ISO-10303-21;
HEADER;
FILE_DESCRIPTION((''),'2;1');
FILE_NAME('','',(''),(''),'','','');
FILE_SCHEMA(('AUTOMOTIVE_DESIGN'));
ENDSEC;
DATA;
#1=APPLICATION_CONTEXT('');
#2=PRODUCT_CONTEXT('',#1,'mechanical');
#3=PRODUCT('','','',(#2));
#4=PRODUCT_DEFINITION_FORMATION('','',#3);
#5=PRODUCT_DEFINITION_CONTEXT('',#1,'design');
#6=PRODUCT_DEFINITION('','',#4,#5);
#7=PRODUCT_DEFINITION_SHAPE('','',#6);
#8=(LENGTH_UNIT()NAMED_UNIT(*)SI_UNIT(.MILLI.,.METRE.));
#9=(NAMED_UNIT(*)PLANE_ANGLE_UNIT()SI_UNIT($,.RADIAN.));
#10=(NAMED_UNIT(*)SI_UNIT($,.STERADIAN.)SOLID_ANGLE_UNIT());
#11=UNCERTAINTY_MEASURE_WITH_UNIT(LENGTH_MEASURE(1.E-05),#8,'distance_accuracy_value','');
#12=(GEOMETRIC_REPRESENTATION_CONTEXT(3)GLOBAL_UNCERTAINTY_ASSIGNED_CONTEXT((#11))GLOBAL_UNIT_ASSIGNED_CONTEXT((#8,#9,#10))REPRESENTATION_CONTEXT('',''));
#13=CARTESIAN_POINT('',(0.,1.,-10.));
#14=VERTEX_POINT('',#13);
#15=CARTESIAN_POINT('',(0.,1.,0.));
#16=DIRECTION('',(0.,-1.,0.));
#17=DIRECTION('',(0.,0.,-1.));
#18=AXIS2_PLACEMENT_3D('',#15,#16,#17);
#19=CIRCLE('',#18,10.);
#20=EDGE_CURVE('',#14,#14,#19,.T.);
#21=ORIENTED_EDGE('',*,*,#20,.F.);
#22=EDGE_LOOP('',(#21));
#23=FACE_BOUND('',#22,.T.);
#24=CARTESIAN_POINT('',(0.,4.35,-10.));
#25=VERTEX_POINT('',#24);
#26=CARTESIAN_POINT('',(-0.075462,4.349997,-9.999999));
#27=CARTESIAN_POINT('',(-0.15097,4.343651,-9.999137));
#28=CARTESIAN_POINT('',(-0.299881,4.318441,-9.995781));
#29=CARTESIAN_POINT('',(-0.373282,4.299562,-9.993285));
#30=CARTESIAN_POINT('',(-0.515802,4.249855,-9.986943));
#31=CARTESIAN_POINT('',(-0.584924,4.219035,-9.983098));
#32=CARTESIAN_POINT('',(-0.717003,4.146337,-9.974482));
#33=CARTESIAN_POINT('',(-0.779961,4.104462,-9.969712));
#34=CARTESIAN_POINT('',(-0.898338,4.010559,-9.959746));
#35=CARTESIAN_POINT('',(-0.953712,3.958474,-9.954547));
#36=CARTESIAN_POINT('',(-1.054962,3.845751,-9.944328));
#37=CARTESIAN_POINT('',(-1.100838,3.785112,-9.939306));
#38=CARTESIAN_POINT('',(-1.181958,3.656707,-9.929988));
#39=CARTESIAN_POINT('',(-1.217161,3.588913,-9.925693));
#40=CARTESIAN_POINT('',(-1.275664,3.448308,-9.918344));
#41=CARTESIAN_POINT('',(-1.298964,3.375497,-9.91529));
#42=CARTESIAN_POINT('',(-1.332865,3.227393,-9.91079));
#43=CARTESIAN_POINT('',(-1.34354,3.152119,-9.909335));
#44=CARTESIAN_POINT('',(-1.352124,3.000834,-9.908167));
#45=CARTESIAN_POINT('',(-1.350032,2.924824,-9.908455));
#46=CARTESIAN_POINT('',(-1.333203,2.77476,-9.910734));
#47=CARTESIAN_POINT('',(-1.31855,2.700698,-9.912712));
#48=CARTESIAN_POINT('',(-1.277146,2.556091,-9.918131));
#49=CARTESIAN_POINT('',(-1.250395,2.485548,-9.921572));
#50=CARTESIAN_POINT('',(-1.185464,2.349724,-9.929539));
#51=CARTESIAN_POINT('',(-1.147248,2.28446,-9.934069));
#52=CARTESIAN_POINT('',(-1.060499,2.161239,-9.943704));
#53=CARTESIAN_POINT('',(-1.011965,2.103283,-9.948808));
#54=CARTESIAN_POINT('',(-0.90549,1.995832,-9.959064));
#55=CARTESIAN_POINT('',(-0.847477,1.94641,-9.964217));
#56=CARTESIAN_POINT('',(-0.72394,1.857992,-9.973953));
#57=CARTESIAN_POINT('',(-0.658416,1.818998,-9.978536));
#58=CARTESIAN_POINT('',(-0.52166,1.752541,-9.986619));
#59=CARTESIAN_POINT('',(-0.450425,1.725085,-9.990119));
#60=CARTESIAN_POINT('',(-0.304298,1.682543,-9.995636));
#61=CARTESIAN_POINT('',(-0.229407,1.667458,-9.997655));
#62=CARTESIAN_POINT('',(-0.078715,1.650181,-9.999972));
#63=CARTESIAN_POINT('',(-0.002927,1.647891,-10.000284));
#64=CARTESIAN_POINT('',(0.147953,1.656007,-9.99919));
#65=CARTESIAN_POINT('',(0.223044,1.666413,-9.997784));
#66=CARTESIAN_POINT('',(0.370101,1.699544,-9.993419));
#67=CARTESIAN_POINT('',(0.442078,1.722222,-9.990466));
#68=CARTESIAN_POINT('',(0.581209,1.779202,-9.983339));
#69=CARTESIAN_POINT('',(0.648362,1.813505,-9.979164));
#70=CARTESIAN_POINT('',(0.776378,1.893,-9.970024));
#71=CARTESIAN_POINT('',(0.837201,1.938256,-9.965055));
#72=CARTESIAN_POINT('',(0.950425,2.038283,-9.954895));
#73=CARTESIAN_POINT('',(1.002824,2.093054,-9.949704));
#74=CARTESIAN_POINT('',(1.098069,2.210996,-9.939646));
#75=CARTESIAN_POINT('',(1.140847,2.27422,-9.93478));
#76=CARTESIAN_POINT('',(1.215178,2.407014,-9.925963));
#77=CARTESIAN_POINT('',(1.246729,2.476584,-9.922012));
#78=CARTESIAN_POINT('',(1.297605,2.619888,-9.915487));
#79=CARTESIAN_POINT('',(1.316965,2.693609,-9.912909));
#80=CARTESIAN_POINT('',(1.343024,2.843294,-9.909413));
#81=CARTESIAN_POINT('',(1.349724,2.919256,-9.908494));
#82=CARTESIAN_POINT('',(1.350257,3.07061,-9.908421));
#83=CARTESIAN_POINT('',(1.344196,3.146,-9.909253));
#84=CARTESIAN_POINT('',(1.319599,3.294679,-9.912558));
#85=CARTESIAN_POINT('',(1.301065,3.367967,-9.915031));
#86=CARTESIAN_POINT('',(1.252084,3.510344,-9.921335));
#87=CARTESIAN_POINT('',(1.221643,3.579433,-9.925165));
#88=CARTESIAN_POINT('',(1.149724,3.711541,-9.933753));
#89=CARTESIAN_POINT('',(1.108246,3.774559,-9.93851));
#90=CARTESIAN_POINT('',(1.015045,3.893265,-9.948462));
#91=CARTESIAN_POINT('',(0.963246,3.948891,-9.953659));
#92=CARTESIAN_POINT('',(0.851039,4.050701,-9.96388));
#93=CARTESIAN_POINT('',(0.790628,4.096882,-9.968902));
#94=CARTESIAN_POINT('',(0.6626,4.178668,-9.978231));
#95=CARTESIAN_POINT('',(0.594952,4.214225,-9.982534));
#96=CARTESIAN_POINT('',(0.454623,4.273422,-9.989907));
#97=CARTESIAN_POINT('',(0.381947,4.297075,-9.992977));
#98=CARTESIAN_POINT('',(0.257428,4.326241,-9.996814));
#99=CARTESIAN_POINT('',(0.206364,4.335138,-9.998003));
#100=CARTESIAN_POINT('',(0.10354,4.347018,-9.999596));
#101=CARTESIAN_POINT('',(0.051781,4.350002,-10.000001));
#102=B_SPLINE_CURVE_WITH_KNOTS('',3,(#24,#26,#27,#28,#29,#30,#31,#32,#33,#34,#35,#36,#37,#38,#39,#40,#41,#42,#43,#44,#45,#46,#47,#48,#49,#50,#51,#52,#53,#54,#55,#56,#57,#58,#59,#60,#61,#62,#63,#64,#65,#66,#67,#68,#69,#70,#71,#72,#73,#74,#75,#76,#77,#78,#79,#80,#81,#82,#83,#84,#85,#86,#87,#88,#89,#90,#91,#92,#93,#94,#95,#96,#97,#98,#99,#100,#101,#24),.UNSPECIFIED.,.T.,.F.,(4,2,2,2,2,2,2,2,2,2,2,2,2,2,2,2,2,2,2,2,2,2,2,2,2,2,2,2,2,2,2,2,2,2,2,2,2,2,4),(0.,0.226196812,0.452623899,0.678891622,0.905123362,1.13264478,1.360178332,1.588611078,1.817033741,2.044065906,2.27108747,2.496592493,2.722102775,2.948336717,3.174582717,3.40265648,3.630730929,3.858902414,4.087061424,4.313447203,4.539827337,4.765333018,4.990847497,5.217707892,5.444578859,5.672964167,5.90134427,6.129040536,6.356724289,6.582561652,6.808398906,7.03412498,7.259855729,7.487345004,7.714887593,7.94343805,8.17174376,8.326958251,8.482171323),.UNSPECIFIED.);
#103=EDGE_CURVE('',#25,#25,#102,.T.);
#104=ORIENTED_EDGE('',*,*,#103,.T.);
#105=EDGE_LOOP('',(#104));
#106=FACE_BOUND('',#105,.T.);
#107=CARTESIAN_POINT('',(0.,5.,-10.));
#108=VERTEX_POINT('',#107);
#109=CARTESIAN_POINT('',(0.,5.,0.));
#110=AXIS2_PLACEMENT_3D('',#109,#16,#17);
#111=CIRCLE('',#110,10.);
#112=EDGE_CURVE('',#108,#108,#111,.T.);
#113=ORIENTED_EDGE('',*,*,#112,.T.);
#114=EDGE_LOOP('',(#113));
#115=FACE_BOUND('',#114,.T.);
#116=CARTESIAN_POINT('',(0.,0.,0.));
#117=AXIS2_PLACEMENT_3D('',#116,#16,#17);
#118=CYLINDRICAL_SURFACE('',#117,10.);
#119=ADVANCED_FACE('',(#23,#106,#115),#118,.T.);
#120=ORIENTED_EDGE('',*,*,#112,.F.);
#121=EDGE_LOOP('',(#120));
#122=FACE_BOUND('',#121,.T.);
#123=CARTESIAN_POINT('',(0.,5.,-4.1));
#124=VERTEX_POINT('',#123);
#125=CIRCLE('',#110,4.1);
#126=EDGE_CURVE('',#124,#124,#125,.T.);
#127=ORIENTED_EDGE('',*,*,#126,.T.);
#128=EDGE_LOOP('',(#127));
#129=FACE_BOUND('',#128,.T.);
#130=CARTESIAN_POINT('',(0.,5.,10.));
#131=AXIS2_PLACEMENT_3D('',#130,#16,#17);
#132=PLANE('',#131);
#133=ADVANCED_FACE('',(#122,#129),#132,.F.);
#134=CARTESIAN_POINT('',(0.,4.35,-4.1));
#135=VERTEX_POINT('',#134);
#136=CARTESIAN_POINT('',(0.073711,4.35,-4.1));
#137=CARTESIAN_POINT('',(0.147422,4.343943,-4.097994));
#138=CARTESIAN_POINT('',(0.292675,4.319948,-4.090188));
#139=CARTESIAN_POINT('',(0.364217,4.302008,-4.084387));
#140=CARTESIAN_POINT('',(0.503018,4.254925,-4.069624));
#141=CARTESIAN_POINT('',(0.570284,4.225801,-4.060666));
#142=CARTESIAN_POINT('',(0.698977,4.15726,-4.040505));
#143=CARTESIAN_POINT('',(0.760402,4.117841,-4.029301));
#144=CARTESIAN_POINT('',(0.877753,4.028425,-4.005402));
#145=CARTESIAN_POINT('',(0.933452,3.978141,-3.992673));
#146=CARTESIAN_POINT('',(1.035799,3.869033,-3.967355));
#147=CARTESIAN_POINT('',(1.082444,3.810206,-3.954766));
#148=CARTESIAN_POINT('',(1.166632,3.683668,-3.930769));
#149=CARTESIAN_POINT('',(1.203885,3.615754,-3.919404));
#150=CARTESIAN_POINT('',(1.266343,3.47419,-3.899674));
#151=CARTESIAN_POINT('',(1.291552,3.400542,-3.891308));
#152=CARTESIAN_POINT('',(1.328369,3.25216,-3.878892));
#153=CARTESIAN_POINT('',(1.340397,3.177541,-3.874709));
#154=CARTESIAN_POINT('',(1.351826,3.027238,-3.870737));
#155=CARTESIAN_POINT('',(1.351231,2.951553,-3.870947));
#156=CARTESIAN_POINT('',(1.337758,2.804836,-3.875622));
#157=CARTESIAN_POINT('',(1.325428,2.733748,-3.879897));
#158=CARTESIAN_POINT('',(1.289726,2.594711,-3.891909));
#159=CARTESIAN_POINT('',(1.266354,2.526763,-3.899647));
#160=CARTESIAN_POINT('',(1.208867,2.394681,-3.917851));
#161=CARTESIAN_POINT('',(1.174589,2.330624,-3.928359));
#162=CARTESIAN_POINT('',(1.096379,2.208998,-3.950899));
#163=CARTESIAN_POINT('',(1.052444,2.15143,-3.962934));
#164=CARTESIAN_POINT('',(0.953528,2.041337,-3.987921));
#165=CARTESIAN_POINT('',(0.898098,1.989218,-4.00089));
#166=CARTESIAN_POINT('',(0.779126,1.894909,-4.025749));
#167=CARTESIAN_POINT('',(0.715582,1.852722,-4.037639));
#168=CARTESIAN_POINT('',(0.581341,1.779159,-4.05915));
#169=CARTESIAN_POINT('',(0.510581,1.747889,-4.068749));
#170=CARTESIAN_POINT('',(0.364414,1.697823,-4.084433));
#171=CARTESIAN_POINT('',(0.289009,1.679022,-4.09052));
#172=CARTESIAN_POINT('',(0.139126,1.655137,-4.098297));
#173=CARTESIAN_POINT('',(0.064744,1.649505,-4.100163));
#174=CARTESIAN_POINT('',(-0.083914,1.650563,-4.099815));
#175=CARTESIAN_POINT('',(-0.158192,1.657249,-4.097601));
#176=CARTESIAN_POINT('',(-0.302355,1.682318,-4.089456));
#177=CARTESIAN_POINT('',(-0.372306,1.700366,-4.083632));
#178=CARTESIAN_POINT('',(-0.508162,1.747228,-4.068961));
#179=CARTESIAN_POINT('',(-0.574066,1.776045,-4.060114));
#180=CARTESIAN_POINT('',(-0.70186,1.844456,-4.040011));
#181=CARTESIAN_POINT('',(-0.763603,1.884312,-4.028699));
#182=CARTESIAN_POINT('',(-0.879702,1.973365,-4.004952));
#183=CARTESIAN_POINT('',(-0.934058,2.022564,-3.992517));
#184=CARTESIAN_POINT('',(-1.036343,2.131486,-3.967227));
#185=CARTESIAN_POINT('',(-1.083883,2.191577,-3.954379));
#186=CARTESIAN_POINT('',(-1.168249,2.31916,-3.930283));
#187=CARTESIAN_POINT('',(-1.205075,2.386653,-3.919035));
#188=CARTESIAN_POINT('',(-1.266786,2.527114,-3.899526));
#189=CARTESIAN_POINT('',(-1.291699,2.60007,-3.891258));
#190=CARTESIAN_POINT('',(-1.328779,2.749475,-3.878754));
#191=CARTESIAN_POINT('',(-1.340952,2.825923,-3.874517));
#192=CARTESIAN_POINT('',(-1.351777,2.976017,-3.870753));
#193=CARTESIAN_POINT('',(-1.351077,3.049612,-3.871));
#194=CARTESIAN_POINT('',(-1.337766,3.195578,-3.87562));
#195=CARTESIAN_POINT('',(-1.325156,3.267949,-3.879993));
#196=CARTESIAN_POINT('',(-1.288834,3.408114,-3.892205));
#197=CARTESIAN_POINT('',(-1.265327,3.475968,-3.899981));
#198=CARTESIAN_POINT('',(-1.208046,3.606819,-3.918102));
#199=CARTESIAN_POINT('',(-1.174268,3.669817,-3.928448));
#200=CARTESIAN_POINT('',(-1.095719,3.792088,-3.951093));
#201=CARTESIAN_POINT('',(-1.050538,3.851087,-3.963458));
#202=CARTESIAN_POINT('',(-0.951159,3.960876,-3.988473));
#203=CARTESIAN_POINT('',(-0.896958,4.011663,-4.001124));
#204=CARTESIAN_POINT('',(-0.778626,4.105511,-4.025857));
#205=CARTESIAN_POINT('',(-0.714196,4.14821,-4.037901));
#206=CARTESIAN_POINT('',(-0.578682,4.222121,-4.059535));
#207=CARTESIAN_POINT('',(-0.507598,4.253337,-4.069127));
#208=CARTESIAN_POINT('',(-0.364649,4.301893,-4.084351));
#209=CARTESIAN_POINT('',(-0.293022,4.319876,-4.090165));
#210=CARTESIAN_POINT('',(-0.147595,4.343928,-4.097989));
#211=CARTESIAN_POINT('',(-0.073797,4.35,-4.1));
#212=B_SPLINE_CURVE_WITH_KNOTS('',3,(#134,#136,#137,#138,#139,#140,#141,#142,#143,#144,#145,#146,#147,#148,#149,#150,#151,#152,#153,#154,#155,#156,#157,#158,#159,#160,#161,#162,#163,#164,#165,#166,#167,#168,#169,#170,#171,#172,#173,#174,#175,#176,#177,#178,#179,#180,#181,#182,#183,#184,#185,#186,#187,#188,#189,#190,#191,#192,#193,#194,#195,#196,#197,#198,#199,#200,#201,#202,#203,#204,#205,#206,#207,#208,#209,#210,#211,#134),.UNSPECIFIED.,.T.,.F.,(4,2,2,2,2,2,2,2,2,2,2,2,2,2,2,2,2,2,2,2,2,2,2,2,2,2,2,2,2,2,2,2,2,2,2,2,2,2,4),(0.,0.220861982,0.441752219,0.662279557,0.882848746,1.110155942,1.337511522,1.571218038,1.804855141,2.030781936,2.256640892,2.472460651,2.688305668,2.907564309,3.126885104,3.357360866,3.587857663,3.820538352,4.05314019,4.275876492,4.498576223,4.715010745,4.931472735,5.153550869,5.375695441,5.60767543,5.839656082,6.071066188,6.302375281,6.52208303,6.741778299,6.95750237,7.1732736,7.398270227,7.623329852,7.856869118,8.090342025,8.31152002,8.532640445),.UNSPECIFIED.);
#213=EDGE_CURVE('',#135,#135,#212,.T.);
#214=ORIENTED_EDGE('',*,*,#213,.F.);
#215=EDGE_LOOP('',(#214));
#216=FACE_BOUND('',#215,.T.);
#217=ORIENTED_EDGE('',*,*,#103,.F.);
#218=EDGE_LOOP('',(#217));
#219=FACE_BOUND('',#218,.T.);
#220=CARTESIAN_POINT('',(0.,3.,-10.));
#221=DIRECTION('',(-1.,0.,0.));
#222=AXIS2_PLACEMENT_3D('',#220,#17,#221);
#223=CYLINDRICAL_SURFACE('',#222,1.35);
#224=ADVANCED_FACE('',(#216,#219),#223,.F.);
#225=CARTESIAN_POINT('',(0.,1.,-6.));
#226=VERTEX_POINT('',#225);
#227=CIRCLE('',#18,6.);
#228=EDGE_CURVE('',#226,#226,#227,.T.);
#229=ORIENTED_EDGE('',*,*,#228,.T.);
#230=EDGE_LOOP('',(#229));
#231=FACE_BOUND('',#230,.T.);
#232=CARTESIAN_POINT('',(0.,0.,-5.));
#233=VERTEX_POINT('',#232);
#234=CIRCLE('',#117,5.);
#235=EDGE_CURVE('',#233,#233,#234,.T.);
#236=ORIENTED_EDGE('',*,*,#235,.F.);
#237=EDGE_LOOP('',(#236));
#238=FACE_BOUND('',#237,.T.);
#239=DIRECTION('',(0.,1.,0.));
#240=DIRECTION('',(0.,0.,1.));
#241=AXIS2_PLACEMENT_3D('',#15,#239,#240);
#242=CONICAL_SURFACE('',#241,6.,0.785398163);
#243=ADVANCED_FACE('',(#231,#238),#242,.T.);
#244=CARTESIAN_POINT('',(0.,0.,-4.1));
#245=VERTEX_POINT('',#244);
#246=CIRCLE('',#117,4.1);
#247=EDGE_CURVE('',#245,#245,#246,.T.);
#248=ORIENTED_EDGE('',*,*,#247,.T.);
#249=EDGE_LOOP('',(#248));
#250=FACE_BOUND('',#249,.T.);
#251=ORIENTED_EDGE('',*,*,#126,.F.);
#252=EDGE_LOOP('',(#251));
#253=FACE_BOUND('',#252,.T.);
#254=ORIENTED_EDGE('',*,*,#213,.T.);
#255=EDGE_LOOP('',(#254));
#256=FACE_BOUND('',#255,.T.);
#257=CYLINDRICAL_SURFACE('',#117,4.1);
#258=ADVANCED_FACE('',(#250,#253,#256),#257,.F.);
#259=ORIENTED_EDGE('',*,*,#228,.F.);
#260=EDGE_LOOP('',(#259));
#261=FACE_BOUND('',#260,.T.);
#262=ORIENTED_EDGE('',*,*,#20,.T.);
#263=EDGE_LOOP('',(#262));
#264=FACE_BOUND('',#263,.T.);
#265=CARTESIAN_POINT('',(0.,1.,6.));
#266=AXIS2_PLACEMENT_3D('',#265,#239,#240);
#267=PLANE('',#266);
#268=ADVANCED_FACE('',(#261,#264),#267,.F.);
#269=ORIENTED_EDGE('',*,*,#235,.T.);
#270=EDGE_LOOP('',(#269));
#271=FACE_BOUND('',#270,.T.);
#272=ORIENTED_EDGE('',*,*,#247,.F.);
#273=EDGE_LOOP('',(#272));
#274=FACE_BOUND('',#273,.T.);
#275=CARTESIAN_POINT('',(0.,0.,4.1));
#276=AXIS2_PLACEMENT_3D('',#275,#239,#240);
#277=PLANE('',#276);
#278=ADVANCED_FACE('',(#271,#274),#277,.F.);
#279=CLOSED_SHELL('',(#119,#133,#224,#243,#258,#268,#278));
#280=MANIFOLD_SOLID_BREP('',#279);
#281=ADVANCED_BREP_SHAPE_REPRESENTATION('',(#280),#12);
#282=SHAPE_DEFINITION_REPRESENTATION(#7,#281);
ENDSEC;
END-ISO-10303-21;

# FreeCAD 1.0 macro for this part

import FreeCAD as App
import Part
import Sketcher
from FreeCAD import Vector
Q = App.Units.Quantity

doc = App.newDocument("Part")
body = doc.addObject("PartDesign::Body", "Body")

# Sketch on YZ plane
sketch1 = body.newObject("Sketcher::SketchObject", "Sketch")
sketch1.AttachmentSupport = (doc.getObject("YZ_Plane"), [""])
sketch1.MapMode = "FlatFace"
sketch1.addGeometry([
    Part.LineSegment(Vector(0, 5, 0), Vector(0, 4.1, 0)),  # 0
    Part.LineSegment(Vector(0, 4.1, 0), Vector(5, 4.1, 0)),  # 1
    Part.LineSegment(Vector(5, 4.1, 0), Vector(5, 10, 0)),  # 2
    Part.LineSegment(Vector(5, 10, 0), Vector(1, 10, 0)),  # 3
    Part.LineSegment(Vector(1, 10, 0), Vector(1, 6, 0)),  # 4
    Part.LineSegment(Vector(1, 6, 0), Vector(0, 5, 0)),  # 5
], False)
sketch1.addConstraint([
    Sketcher.Constraint("Coincident", 0, 2, 1, 1),
    Sketcher.Constraint("Coincident", 1, 2, 2, 1),
    Sketcher.Constraint("Coincident", 2, 2, 3, 1),
    Sketcher.Constraint("Coincident", 3, 2, 4, 1),
    Sketcher.Constraint("Coincident", 4, 2, 5, 1),
    Sketcher.Constraint("Coincident", 5, 2, 0, 1),
    Sketcher.Constraint("Vertical", 0),
    Sketcher.Constraint("Horizontal", 1),
    Sketcher.Constraint("Vertical", 2),
    Sketcher.Constraint("Horizontal", 3),
    Sketcher.Constraint("Vertical", 4),
    Sketcher.Constraint("PointOnObject", 0, 2, -2),
    Sketcher.Constraint("Equal", 3, 4),
    Sketcher.Constraint("DistanceX", 1, 1, 1, 2, Q("5 mm")),
    Sketcher.Constraint("DistanceX", 3, 2, 3, 1, Q("4 mm")),
    Sketcher.Constraint("Angle", 5, Q("-135 deg")),
    Sketcher.Constraint("DistanceY", 0, 2, 0, 1, Q("0.9 mm")),
    Sketcher.Constraint("DistanceY", -1, 1, 2, 2, Q("10 mm")),
])
revolution = body.newObject("PartDesign::Revolution", "Revolution")
revolution.Profile = sketch1
revolution.ReferenceAxis = (sketch1, ["H_Axis"])
revolution.Angle = 360

# Sketch on XY plane
sketch2 = body.newObject("Sketcher::SketchObject", "Sketch001")
sketch2.AttachmentSupport = (doc.getObject("XY_Plane"), [""])
sketch2.MapMode = "FlatFace"
sketch2.AttachmentOffset = App.Placement(Vector(0, 0, -10), App.Rotation())
sketch2.addGeometry(Part.Circle(Vector(0, 3, 0), Vector(0, 0, 1), 1.4), False)
sketch2.addConstraint([
    Sketcher.Constraint("PointOnObject", 0, 3, -2),
    Sketcher.Constraint("Diameter", 0, Q("2.7 mm")),
    Sketcher.Constraint("DistanceY", -1, 1, 0, 3, Q("3 mm")),
])
pocket1 = body.newObject("PartDesign::Pocket", "Pocket")
pocket1.Profile = sketch2
pocket1.Type = "UpToFirst"
pocket1.Reversed = True

doc.recompute()
